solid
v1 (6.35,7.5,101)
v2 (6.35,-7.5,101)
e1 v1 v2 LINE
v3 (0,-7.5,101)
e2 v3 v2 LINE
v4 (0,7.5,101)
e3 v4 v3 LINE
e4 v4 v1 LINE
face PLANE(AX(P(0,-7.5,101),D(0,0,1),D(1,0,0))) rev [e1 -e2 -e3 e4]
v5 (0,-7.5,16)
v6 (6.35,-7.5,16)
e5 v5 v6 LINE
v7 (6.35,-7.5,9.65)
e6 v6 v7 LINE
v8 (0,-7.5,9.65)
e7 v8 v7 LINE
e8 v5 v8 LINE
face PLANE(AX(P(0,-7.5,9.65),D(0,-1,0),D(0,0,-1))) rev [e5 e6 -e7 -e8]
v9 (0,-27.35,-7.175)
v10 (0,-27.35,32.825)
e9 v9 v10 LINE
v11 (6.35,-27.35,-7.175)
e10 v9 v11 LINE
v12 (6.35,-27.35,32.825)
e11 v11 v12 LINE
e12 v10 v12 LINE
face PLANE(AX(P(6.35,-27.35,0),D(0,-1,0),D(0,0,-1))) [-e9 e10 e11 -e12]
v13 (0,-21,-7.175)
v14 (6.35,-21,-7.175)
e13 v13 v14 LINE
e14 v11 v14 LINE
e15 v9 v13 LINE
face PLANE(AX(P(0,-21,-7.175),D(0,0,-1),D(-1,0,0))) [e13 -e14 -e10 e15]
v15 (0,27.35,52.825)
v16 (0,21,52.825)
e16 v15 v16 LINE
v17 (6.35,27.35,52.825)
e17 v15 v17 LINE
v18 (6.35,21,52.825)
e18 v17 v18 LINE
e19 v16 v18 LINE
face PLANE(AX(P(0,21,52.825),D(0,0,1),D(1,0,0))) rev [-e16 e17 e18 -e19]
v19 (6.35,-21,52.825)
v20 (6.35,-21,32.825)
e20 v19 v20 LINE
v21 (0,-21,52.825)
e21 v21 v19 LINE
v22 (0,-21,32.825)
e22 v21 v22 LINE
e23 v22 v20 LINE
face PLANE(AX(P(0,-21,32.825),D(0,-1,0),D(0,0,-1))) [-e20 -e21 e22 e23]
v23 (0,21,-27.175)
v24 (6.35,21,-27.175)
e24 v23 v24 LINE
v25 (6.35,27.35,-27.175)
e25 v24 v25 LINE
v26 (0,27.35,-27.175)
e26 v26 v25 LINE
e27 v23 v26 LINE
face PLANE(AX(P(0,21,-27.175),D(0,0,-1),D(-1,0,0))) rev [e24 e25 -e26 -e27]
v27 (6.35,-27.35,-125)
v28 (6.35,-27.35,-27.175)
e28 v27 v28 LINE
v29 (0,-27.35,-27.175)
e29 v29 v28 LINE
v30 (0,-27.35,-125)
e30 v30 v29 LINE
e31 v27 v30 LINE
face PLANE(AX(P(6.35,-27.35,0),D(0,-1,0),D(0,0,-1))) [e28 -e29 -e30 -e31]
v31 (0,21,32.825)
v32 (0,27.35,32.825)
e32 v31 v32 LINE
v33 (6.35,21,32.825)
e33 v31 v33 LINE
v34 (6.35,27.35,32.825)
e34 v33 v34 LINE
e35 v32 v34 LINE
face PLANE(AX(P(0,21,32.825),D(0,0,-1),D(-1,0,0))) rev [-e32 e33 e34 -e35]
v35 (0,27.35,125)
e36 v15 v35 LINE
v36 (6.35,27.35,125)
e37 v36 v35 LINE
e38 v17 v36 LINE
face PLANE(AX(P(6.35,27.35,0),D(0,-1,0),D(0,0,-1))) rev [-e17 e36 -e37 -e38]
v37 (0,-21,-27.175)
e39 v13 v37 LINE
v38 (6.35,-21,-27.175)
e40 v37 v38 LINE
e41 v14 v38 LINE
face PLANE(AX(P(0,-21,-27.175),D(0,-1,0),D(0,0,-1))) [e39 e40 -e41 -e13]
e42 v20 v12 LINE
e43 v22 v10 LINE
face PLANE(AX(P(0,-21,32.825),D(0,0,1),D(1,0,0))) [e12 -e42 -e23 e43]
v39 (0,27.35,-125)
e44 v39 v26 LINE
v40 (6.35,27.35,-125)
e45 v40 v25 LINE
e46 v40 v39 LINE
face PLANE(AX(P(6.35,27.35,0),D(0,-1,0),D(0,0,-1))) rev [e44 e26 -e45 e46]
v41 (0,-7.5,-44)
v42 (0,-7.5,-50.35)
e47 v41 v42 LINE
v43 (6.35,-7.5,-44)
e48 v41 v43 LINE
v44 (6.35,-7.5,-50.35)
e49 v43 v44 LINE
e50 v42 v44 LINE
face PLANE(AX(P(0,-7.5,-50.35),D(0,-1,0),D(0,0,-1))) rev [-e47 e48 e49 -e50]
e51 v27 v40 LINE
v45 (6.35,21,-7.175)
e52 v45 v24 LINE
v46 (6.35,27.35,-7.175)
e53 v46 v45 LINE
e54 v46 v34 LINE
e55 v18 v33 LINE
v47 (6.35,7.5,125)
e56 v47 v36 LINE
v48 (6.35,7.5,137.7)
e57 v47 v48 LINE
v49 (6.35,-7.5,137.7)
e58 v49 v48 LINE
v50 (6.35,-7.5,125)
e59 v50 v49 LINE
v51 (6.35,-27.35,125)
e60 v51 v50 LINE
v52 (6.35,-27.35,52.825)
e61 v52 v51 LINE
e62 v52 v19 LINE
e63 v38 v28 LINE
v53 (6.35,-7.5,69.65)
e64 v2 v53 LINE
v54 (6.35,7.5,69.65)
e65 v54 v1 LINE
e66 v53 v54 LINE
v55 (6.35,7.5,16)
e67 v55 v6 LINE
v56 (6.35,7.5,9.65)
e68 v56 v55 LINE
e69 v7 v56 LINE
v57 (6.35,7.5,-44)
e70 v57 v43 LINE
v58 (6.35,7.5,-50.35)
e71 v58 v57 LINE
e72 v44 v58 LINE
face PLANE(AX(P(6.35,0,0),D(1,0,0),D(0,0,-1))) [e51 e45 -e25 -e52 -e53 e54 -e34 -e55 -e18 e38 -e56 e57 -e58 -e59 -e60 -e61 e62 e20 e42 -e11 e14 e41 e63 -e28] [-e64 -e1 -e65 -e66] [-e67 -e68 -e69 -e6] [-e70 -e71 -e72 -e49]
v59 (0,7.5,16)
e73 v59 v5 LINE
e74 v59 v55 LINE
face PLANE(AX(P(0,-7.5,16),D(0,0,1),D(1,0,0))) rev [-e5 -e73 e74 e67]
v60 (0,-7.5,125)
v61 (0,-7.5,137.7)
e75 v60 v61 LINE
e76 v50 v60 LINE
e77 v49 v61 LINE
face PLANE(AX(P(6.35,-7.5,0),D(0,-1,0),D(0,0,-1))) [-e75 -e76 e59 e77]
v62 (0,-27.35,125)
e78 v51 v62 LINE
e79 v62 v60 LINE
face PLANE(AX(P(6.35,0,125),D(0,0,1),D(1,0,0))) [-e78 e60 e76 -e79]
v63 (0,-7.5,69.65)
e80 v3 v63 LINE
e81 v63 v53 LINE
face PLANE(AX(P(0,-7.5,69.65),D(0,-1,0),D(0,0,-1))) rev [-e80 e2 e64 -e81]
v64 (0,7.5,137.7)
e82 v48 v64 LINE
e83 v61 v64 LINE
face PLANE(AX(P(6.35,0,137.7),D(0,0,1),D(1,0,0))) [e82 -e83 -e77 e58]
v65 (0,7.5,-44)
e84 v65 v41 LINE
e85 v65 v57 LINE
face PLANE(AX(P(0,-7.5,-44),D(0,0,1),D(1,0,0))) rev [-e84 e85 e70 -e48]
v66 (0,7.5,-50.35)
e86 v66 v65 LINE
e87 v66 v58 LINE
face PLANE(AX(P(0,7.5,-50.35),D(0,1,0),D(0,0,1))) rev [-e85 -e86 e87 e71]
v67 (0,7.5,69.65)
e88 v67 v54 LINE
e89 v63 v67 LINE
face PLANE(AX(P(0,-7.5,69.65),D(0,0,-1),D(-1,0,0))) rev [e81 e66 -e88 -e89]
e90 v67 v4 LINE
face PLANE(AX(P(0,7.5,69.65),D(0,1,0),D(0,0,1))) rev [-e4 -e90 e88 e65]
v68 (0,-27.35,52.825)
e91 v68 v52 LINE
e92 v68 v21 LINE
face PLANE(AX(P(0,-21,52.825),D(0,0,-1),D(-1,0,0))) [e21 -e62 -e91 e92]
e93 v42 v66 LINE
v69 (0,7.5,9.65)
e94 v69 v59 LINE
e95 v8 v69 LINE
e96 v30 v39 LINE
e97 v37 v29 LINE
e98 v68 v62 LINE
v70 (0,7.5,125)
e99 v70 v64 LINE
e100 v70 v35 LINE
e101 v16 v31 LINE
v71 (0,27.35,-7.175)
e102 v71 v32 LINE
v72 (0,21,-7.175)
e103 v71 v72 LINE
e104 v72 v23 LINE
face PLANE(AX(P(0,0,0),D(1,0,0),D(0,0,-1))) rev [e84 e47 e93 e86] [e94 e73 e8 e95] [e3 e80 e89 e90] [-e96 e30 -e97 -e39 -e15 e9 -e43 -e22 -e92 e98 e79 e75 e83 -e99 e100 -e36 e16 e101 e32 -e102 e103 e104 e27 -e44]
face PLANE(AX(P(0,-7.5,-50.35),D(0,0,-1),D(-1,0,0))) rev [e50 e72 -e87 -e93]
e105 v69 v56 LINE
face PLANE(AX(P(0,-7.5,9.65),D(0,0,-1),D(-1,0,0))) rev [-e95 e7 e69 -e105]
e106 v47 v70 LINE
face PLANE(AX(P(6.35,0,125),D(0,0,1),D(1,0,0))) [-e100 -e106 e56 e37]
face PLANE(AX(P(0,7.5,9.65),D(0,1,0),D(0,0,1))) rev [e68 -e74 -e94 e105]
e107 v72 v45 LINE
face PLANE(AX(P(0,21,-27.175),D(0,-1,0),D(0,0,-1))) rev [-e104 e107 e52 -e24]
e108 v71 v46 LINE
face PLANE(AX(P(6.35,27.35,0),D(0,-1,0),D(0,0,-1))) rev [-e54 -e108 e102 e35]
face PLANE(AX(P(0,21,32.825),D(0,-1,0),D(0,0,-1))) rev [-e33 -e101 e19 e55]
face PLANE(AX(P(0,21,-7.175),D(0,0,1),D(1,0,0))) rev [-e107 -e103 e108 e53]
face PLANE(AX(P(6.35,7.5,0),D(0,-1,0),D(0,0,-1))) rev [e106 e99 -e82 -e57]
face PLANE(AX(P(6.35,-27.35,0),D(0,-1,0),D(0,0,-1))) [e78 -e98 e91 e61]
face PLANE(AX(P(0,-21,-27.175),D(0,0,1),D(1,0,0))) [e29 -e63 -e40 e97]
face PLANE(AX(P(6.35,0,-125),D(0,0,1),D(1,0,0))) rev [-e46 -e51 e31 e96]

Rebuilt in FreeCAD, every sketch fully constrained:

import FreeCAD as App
import Part
import Sketcher

V = App.Vector

doc = App.newDocument("Part")
body = doc.addObject("PartDesign::Body", "Body")

sketch1 = body.newObject("Sketcher::SketchObject", "Sketch")
sketch1.AttachmentSupport = (doc.getObject("YZ_Plane"), [""])
sketch1.MapMode = "FlatFace"
sketch1.addGeometry(Part.LineSegment(V(-8, 125, 0), V(-27, 125, 0)), False)
sketch1.addGeometry(Part.LineSegment(V(-27, 125, 0), V(-27, -125, 0)), False)
sketch1.addGeometry(Part.LineSegment(V(-27, -125, 0), V(27, -125, 0)), False)
sketch1.addGeometry(Part.LineSegment(V(27, -125, 0), V(27, 125, 0)), False)
sketch1.addGeometry(Part.LineSegment(V(27, 125, 0), V(8, 125, 0)), False)
sketch1.addGeometry(Part.LineSegment(V(8, 125, 0), V(8, 138, 0)), False)
sketch1.addGeometry(Part.LineSegment(V(8, 138, 0), V(-8, 138, 0)), False)
sketch1.addGeometry(Part.LineSegment(V(-8, 138, 0), V(-8, 125, 0)), False)
sketch1.addConstraint(Sketcher.Constraint("Coincident", 0, 2, 1, 1))
sketch1.addConstraint(Sketcher.Constraint("Coincident", 1, 2, 2, 1))
sketch1.addConstraint(Sketcher.Constraint("Coincident", 2, 2, 3, 1))
sketch1.addConstraint(Sketcher.Constraint("Coincident", 3, 2, 4, 1))
sketch1.addConstraint(Sketcher.Constraint("Coincident", 4, 2, 5, 1))
sketch1.addConstraint(Sketcher.Constraint("Coincident", 5, 2, 6, 1))
sketch1.addConstraint(Sketcher.Constraint("Coincident", 6, 2, 7, 1))
sketch1.addConstraint(Sketcher.Constraint("Coincident", 7, 2, 0, 1))
sketch1.addConstraint(Sketcher.Constraint("Horizontal", 0))
sketch1.addConstraint(Sketcher.Constraint("Vertical", 1))
sketch1.addConstraint(Sketcher.Constraint("Horizontal", 2))
sketch1.addConstraint(Sketcher.Constraint("Vertical", 3))
sketch1.addConstraint(Sketcher.Constraint("Horizontal", 4))
sketch1.addConstraint(Sketcher.Constraint("Vertical", 5))
sketch1.addConstraint(Sketcher.Constraint("Horizontal", 6))
sketch1.addConstraint(Sketcher.Constraint("Vertical", 7))
sketch1.addConstraint(Sketcher.Constraint("Symmetric", 0, 2, 2, 2, -1, 1))
sketch1.addConstraint(Sketcher.Constraint("Symmetric", 4, 2, 7, 2, -2))
sketch1.addConstraint(Sketcher.Constraint("DistanceX", 6, 2, 6, 1, 15.0))
sketch1.addConstraint(Sketcher.Constraint("DistanceY", 1, 2, 1, 1, 250.0))
sketch1.addConstraint(Sketcher.Constraint("DistanceX", 2, 1, 2, 2, 54.7))
sketch1.addConstraint(Sketcher.Constraint("DistanceY", 5, 1, 5, 2, 12.7))
pad1 = body.newObject("PartDesign::Pad", "Pad")
pad1.Profile = sketch1
pad1.Length = 6.35

sketch2 = body.newObject("Sketcher::SketchObject", "Sketch001")
sketch2.AttachmentSupport = (doc.getObject("YZ_Plane"), [""])
sketch2.MapMode = "FlatFace"
sketch2.AttachmentOffset = App.Placement(V(0, 0, 6.35), App.Rotation())
sketch2.addGeometry(Part.LineSegment(V(8, 76, 0), V(-8, 76, 0)), False)
sketch2.addGeometry(Part.LineSegment(V(-8, 76, 0), V(-8, 70, 0)), False)
sketch2.addGeometry(Part.LineSegment(V(-8, 70, 0), V(8, 70, 0)), False)
sketch2.addGeometry(Part.LineSegment(V(8, 70, 0), V(8, 76, 0)), False)
sketch2.addConstraint(Sketcher.Constraint("Coincident", 0, 2, 1, 1))
sketch2.addConstraint(Sketcher.Constraint("Coincident", 1, 2, 2, 1))
sketch2.addConstraint(Sketcher.Constraint("Coincident", 2, 2, 3, 1))
sketch2.addConstraint(Sketcher.Constraint("Coincident", 3, 2, 0, 1))
sketch2.addConstraint(Sketcher.Constraint("Horizontal", 0))
sketch2.addConstraint(Sketcher.Constraint("Vertical", 1))
sketch2.addConstraint(Sketcher.Constraint("Horizontal", 2))
sketch2.addConstraint(Sketcher.Constraint("Vertical", 3))
sketch2.addConstraint(Sketcher.Constraint("DistanceX", 0, 2, 0, 1, 15.0))
sketch2.addConstraint(Sketcher.Constraint("DistanceY", -1, 1, 0, 2, 76.0))
sketch2.addConstraint(Sketcher.Constraint("DistanceY", 1, 2, 1, 1, 6.35))
sketch2.addConstraint(Sketcher.Constraint("DistanceX", 0, 2, -1, 1, 7.5))
pocket1 = body.newObject("PartDesign::Pocket", "Pocket")
pocket1.Profile = sketch2
pocket1.Type = "ThroughAll"
doc.recompute()

linearpattern = body.newObject("PartDesign::LinearPattern", "LinearPattern")
linearpattern.Originals = [pocket1]
linearpattern.Direction = (doc.getObject("Z_Axis"), [""])
linearpattern.Mode = "offset"
linearpattern.Offset = 60
linearpattern.Occurrences = 3
linearpattern.Reversed = True
body.Tip = linearpattern

sketch3 = body.newObject("Sketcher::SketchObject", "Sketch002")
sketch3.AttachmentSupport = (doc.getObject("YZ_Plane"), [""])
sketch3.MapMode = "FlatFace"
sketch3.AttachmentOffset = App.Placement(V(0, 0, 6.35), App.Rotation())
sketch3.addGeometry(Part.LineSegment(V(8, 101, 0), V(-8, 101, 0)), False)
sketch3.addGeometry(Part.LineSegment(V(-8, 101, 0), V(-8, 76, 0)), False)
sketch3.addGeometry(Part.LineSegment(V(-8, 76, 0), V(8, 76, 0)), False)
sketch3.addGeometry(Part.LineSegment(V(8, 76, 0), V(8, 101, 0)), False)
sketch3.addConstraint(Sketcher.Constraint("Coincident", 0, 2, 1, 1))
sketch3.addConstraint(Sketcher.Constraint("Coincident", 1, 2, 2, 1))
sketch3.addConstraint(Sketcher.Constraint("Coincident", 2, 2, 3, 1))
sketch3.addConstraint(Sketcher.Constraint("Coincident", 3, 2, 0, 1))
sketch3.addConstraint(Sketcher.Constraint("Horizontal", 0))
sketch3.addConstraint(Sketcher.Constraint("Vertical", 1))
sketch3.addConstraint(Sketcher.Constraint("Horizontal", 2))
sketch3.addConstraint(Sketcher.Constraint("Vertical", 3))
sketch3.addConstraint(Sketcher.Constraint("DistanceX", 0, 2, 0, 1, 15.0))
sketch3.addConstraint(Sketcher.Constraint("DistanceY", 1, 2, 1, 1, 25.0))
sketch3.addConstraint(Sketcher.Constraint("DistanceY", -1, 1, 0, 2, 101.0))
sketch3.addConstraint(Sketcher.Constraint("DistanceX", 0, 2, -1, 1, 7.5))
pocket2 = body.newObject("PartDesign::Pocket", "Pocket001")
pocket2.Profile = sketch3
pocket2.Type = "ThroughAll"

sketch4 = body.newObject("Sketcher::SketchObject", "Sketch003")
sketch4.AttachmentSupport = (doc.getObject("YZ_Plane"), [""])
sketch4.MapMode = "FlatFace"
sketch4.AttachmentOffset = App.Placement(V(0, 0, 6.35), App.Rotation())
sketch4.addGeometry(Part.LineSegment(V(27, 53, 0), V(21, 53, 0)), False)
sketch4.addGeometry(Part.LineSegment(V(21, 53, 0), V(21, 33, 0)), False)
sketch4.addGeometry(Part.LineSegment(V(21, 33, 0), V(27, 33, 0)), False)
sketch4.addGeometry(Part.LineSegment(V(27, 33, 0), V(27, 53, 0)), False)
sketch4.addGeometry(Part.LineSegment(V(27, -7, 0), V(21, -7, 0)), False)
sketch4.addGeometry(Part.LineSegment(V(21, -7, 0), V(21, -27, 0)), False)
sketch4.addGeometry(Part.LineSegment(V(21, -27, 0), V(27, -27, 0)), False)
sketch4.addGeometry(Part.LineSegment(V(27, -27, 0), V(27, -7, 0)), False)
sketch4.addConstraint(Sketcher.Constraint("Coincident", 0, 2, 1, 1))
sketch4.addConstraint(Sketcher.Constraint("Coincident", 1, 2, 2, 1))
sketch4.addConstraint(Sketcher.Constraint("Coincident", 2, 2, 3, 1))
sketch4.addConstraint(Sketcher.Constraint("Coincident", 3, 2, 0, 1))
sketch4.addConstraint(Sketcher.Constraint("Coincident", 4, 2, 5, 1))
sketch4.addConstraint(Sketcher.Constraint("Coincident", 5, 2, 6, 1))
sketch4.addConstraint(Sketcher.Constraint("Coincident", 6, 2, 7, 1))
sketch4.addConstraint(Sketcher.Constraint("Coincident", 7, 2, 4, 1))
sketch4.addConstraint(Sketcher.Constraint("Horizontal", 0))
sketch4.addConstraint(Sketcher.Constraint("Vertical", 1))
sketch4.addConstraint(Sketcher.Constraint("Horizontal", 2))
sketch4.addConstraint(Sketcher.Constraint("Vertical", 3))
sketch4.addConstraint(Sketcher.Constraint("Horizontal", 4))
sketch4.addConstraint(Sketcher.Constraint("Vertical", 5))
sketch4.addConstraint(Sketcher.Constraint("Horizontal", 6))
sketch4.addConstraint(Sketcher.Constraint("Vertical", 7))
sketch4.addConstraint(Sketcher.Constraint("Vertical", 1, 2, 4, 2))
sketch4.addConstraint(Sketcher.Constraint("Vertical", 3, 2, 6, 2))
sketch4.addConstraint(Sketcher.Constraint("Equal", 3, 5))
sketch4.addConstraint(Sketcher.Constraint("DistanceY", 1, 2, 1, 1, 20.0))
sketch4.addConstraint(Sketcher.Constraint("DistanceX", -1, 1, 0, 2, 21.0))
sketch4.addConstraint(Sketcher.Constraint("DistanceY", 4, 2, 1, 2, 40.0))
sketch4.addConstraint(Sketcher.Constraint("DistanceX", 0, 2, 0, 1, 6.35))
sketch4.addConstraint(Sketcher.Constraint("DistanceY", -1, 1, 0, 2, 52.825))
pocket3 = body.newObject("PartDesign::Pocket", "Pocket002")
pocket3.Profile = sketch4
pocket3.Type = "ThroughAll"
doc.recompute()

mirrored = body.newObject("PartDesign::Mirrored", "Mirrored")
mirrored.Originals = [pocket3]
mirrored.MirrorPlane = (doc.getObject("XZ_Plane"), [""])
body.Tip = mirrored

doc.recompute()
